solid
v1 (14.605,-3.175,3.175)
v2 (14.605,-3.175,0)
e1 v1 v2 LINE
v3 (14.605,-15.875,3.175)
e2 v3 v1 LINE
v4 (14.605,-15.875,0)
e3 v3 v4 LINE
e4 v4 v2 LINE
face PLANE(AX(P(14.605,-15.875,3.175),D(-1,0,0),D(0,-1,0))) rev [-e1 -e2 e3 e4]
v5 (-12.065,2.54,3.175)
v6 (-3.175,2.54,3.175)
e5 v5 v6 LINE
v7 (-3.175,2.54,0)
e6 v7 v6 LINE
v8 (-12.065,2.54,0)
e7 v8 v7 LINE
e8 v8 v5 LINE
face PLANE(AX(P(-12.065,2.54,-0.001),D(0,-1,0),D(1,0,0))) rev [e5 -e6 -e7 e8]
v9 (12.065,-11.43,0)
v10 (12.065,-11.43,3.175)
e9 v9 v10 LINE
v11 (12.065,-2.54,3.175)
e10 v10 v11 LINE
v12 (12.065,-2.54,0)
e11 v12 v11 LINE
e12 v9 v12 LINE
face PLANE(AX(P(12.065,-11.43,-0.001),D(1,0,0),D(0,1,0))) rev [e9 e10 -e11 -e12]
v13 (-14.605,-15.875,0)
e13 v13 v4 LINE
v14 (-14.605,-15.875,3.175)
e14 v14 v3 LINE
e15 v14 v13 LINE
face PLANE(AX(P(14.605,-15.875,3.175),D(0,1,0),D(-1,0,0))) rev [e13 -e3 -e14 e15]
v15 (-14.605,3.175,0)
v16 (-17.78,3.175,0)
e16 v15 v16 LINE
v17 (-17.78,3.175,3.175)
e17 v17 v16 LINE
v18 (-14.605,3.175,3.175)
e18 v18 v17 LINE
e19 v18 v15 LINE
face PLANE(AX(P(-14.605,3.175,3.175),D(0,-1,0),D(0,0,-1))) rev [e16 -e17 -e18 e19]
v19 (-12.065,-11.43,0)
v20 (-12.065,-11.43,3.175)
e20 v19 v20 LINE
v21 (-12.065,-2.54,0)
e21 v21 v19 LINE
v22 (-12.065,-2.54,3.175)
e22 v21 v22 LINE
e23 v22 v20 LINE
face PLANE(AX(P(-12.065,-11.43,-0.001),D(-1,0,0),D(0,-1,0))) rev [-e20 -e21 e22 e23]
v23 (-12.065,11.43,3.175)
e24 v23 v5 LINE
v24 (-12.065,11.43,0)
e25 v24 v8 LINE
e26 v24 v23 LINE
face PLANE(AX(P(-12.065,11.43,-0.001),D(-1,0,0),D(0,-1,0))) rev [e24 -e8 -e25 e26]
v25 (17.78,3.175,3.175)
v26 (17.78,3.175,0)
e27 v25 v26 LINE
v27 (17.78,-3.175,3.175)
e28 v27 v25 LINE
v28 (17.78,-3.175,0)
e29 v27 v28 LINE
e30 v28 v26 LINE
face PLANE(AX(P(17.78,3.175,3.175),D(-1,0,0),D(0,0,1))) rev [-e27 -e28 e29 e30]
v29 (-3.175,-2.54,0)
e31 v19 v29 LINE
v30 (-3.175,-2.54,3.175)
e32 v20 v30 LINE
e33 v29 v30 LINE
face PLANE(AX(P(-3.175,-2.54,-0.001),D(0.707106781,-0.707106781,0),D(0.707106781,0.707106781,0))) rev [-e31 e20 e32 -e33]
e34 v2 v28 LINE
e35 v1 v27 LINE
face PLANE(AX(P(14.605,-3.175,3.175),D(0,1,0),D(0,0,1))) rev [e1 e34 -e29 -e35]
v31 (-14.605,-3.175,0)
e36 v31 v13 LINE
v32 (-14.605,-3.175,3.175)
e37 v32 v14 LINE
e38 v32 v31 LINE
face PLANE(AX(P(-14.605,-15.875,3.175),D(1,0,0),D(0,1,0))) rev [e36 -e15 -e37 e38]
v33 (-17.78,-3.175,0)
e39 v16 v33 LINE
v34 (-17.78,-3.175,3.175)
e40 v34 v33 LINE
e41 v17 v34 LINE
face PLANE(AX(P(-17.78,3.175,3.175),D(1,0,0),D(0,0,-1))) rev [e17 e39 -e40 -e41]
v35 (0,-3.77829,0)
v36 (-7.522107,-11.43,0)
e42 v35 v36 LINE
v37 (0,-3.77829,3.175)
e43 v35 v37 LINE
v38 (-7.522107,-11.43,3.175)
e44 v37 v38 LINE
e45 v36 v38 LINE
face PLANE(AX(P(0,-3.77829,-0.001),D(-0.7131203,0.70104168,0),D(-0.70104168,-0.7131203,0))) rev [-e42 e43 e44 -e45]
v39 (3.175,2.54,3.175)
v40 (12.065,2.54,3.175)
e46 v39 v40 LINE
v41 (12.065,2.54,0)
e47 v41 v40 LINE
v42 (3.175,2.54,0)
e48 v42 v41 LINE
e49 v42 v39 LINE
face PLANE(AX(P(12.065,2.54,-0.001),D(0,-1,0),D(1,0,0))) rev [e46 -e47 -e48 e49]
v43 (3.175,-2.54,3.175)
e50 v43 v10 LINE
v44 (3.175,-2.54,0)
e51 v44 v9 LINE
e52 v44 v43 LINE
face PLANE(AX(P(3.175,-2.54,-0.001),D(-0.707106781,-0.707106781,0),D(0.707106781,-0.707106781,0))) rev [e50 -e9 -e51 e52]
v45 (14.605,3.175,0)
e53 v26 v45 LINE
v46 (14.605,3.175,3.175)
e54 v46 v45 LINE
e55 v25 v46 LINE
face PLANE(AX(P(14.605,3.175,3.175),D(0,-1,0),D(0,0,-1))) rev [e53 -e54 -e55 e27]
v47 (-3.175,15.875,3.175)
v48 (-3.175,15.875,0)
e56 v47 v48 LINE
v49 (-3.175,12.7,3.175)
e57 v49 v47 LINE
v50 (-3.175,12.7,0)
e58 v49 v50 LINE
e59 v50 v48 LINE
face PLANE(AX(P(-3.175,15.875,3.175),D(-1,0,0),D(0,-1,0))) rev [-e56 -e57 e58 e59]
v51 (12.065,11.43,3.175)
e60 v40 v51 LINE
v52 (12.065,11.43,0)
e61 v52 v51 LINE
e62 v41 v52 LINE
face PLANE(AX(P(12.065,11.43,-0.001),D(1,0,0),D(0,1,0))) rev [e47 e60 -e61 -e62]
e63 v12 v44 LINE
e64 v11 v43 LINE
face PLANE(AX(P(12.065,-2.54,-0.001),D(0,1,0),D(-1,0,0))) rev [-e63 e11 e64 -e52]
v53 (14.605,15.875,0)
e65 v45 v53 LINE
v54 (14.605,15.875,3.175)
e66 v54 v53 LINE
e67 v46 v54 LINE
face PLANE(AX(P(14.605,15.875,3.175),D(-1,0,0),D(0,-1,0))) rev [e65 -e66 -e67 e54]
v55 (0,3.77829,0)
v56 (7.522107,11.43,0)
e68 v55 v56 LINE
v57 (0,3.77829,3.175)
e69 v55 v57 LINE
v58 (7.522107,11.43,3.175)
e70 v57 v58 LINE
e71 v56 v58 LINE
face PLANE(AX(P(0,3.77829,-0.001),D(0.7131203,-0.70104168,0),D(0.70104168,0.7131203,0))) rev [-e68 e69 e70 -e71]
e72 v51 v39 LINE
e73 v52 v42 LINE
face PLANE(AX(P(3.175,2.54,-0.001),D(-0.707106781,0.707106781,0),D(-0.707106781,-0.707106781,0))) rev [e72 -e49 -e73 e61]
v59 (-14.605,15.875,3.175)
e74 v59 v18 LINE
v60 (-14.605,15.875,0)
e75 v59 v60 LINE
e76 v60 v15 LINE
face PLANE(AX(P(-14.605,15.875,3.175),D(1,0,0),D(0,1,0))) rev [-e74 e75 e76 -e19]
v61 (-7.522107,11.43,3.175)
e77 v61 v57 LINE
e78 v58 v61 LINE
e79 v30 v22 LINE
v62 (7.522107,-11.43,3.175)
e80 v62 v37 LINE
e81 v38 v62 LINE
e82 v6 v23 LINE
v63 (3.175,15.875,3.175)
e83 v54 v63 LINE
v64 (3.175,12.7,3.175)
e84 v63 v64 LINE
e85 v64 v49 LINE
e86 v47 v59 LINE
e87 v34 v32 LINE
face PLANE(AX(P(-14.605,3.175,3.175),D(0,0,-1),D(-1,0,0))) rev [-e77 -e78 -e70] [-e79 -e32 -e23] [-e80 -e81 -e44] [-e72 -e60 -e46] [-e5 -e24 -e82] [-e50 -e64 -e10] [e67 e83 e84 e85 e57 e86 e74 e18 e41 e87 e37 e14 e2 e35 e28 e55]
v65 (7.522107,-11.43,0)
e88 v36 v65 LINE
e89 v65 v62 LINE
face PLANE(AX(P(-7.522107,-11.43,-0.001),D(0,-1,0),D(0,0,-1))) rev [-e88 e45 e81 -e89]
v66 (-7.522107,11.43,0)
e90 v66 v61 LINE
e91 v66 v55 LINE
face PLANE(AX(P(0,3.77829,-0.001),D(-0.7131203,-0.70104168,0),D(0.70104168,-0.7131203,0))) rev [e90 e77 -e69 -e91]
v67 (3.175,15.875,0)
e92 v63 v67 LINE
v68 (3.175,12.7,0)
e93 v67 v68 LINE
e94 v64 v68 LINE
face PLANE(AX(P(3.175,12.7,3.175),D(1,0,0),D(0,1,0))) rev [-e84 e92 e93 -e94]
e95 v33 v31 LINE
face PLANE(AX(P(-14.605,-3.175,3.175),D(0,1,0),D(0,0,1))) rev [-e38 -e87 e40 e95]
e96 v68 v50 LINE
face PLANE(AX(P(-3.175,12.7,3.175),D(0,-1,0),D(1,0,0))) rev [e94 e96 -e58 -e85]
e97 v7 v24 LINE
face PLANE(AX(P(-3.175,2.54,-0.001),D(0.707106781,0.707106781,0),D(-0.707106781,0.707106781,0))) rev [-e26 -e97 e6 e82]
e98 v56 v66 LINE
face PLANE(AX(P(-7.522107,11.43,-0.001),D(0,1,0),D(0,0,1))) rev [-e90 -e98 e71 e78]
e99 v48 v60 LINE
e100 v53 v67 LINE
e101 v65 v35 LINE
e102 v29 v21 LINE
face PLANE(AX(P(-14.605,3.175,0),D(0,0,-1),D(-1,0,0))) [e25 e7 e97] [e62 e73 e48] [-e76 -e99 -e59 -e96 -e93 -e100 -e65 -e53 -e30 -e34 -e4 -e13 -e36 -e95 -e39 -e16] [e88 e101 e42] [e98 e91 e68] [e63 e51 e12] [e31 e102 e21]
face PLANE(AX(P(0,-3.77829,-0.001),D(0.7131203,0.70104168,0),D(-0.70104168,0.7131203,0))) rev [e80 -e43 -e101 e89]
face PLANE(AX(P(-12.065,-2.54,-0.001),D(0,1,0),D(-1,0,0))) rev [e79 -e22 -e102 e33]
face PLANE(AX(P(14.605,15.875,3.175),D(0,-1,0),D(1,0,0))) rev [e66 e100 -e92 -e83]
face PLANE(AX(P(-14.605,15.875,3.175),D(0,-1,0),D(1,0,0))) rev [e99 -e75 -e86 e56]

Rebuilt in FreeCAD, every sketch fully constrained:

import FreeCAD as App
import Part
import Sketcher
Q = App.Units.Quantity

doc = App.newDocument("Part")
body = doc.addObject("PartDesign::Body", "Body")

sketch1 = doc.addObject("Sketcher::SketchObject", "Sketch")
body.addObject(sketch1)
sketch1.AttachmentSupport = (doc.XY_Plane, [""])
sketch1.MapMode = "FlatFace"
sketch1.addGeometry([
    Part.LineSegment(App.Vector(-3.2, 15.9, 0), App.Vector(-14.6, 15.9, 0)),
    Part.LineSegment(App.Vector(-14.6, 15.9, 0), App.Vector(-14.6, 3.2, 0)),
    Part.LineSegment(App.Vector(-14.6, 3.2, 0), App.Vector(-17.8, 3.2, 0)),
    Part.LineSegment(App.Vector(-17.8, 3.2, 0), App.Vector(-17.8, -3.2, 0)),
    Part.LineSegment(App.Vector(-17.8, -3.2, 0), App.Vector(-14.6, -3.2, 0)),
    Part.LineSegment(App.Vector(-14.6, -3.2, 0), App.Vector(-14.6, -15.9, 0)),
    Part.LineSegment(App.Vector(-14.6, -15.9, 0), App.Vector(14.6, -15.9, 0)),
    Part.LineSegment(App.Vector(14.6, -15.9, 0), App.Vector(14.6, -3.2, 0)),
    Part.LineSegment(App.Vector(14.6, -3.2, 0), App.Vector(17.8, -3.2, 0)),
    Part.LineSegment(App.Vector(17.8, -3.2, 0), App.Vector(17.8, 3.2, 0)),
    Part.LineSegment(App.Vector(17.8, 3.2, 0), App.Vector(14.6, 3.2, 0)),
    Part.LineSegment(App.Vector(14.6, 3.2, 0), App.Vector(14.6, 15.9, 0)),
    Part.LineSegment(App.Vector(14.6, 15.9, 0), App.Vector(3.2, 15.9, 0)),
    Part.LineSegment(App.Vector(3.2, 15.9, 0), App.Vector(3.2, 12.7, 0)),
    Part.LineSegment(App.Vector(3.2, 12.7, 0), App.Vector(-3.2, 12.7, 0)),
    Part.LineSegment(App.Vector(-3.2, 12.7, 0), App.Vector(-3.2, 15.9, 0)),
], False)
sketch1.addConstraint([
    Sketcher.Constraint("Coincident", 0, 2, 1, 1),
    Sketcher.Constraint("Coincident", 1, 2, 2, 1),
    Sketcher.Constraint("Coincident", 2, 2, 3, 1),
    Sketcher.Constraint("Coincident", 3, 2, 4, 1),
    Sketcher.Constraint("Coincident", 4, 2, 5, 1),
    Sketcher.Constraint("Coincident", 5, 2, 6, 1),
    Sketcher.Constraint("Coincident", 6, 2, 7, 1),
    Sketcher.Constraint("Coincident", 7, 2, 8, 1),
    Sketcher.Constraint("Coincident", 8, 2, 9, 1),
    Sketcher.Constraint("Coincident", 9, 2, 10, 1),
    Sketcher.Constraint("Coincident", 10, 2, 11, 1),
    Sketcher.Constraint("Coincident", 11, 2, 12, 1),
    Sketcher.Constraint("Coincident", 12, 2, 13, 1),
    Sketcher.Constraint("Coincident", 13, 2, 14, 1),
    Sketcher.Constraint("Coincident", 14, 2, 15, 1),
    Sketcher.Constraint("Coincident", 15, 2, 0, 1),
    Sketcher.Constraint("Horizontal", 0),
    Sketcher.Constraint("Vertical", 1),
    Sketcher.Constraint("Horizontal", 2),
    Sketcher.Constraint("Vertical", 3),
    Sketcher.Constraint("Horizontal", 4),
    Sketcher.Constraint("Vertical", 5),
    Sketcher.Constraint("Horizontal", 6),
    Sketcher.Constraint("Vertical", 7),
    Sketcher.Constraint("Horizontal", 8),
    Sketcher.Constraint("Vertical", 9),
    Sketcher.Constraint("Horizontal", 10),
    Sketcher.Constraint("Vertical", 11),
    Sketcher.Constraint("Horizontal", 12),
    Sketcher.Constraint("Vertical", 13),
    Sketcher.Constraint("Horizontal", 14),
    Sketcher.Constraint("Vertical", 15),
    Sketcher.Constraint("Symmetric", 0, 2, 6, 2, -1, 1),
    Sketcher.Constraint("Symmetric", 2, 2, 8, 2, -1, 1),
    Sketcher.Constraint("Symmetric", 4, 2, 10, 2, -1, 1),
    Sketcher.Constraint("Symmetric", 4, 2, 7, 2, -2),
    Sketcher.Constraint("Symmetric", 12, 2, 15, 2, -2),
    Sketcher.Constraint("Equal", 14, 3),
    Sketcher.Constraint("Equal", 10, 13),
    Sketcher.Constraint("DistanceY", 1, 2, 1, 1, Q("0.5 in")),
    Sketcher.Constraint("DistanceX", 0, 2, 0, 1, Q("0.45 in")),
    Sketcher.Constraint("DistanceX", 6, 1, 6, 2, Q("1.15 in")),
    Sketcher.Constraint("DistanceX", 2, 2, -1, 1, Q("0.7 in")),
])
pad1 = doc.addObject("PartDesign::Pad", "Pad")
body.addObject(pad1)
pad1.Profile = sketch1
pad1.Length = Q("0.125 in")

sketch2 = doc.addObject("Sketcher::SketchObject", "Sketch001")
body.addObject(sketch2)
sketch2.AttachmentSupport = (doc.XY_Plane, [""])
sketch2.MapMode = "FlatFace"
sketch2.AttachmentOffset = App.Placement(App.Vector(0, 0, 0.125 * 25.4), App.Rotation())
sketch2.addGeometry([
    Part.LineSegment(App.Vector(12, 11, 0), App.Vector(3, 3, 0)),
    Part.LineSegment(App.Vector(3, 3, 0), App.Vector(12, 3, 0)),
    Part.LineSegment(App.Vector(12, 3, 0), App.Vector(12, 11, 0)),
], False)
sketch2.addConstraint([
    Sketcher.Constraint("Coincident", 0, 2, 1, 1),
    Sketcher.Constraint("Coincident", 1, 2, 2, 1),
    Sketcher.Constraint("Coincident", 2, 2, 0, 1),
    Sketcher.Constraint("Horizontal", 1),
    Sketcher.Constraint("Vertical", 2),
    Sketcher.Constraint("Equal", 1, 2),
    Sketcher.Constraint("DistanceX", 1, 1, 1, 2, Q("0.35 in")),
    Sketcher.Constraint("DistanceY", -1, 1, 0, 2, Q("0.1 in")),
    Sketcher.Constraint("DistanceX", -1, 1, 0, 2, Q("0.125 in")),
])
pocket1 = doc.addObject("PartDesign::Pocket", "Pocket")
body.addObject(pocket1)
pocket1.Profile = sketch2
pocket1.Type = "UpToFirst"

sketch3 = doc.addObject("Sketcher::SketchObject", "Sketch002")
body.addObject(sketch3)
sketch3.AttachmentSupport = (doc.XY_Plane, [""])
sketch3.MapMode = "FlatFace"
sketch3.AttachmentOffset = App.Placement(App.Vector(0, 0, 0.125 * 25.4), App.Rotation())
sketch3.addGeometry([
    Part.LineSegment(App.Vector(-12, 3, 0), App.Vector(-3, 3, 0)),
    Part.LineSegment(App.Vector(-3, 3, 0), App.Vector(-12, 11, 0)),
    Part.LineSegment(App.Vector(-12, 11, 0), App.Vector(-12, 3, 0)),
], False)
sketch3.addConstraint([
    Sketcher.Constraint("Coincident", 0, 2, 1, 1),
    Sketcher.Constraint("Coincident", 1, 2, 2, 1),
    Sketcher.Constraint("Coincident", 2, 2, 0, 1),
    Sketcher.Constraint("Horizontal", 0),
    Sketcher.Constraint("Vertical", 2),
    Sketcher.Constraint("Equal", 0, 2),
    Sketcher.Constraint("DistanceX", 0, 1, 0, 2, Q("0.35 in")),
    Sketcher.Constraint("DistanceY", -1, 1, 0, 2, Q("0.1 in")),
    Sketcher.Constraint("DistanceX", 0, 2, -1, 1, Q("0.125 in")),
])
pocket2 = doc.addObject("PartDesign::Pocket", "Pocket001")
body.addObject(pocket2)
pocket2.Profile = sketch3
pocket2.Type = "UpToFirst"

sketch4 = doc.addObject("Sketcher::SketchObject", "Sketch003")
body.addObject(sketch4)
sketch4.AttachmentSupport = (doc.XY_Plane, [""])
sketch4.MapMode = "FlatFace"
sketch4.AttachmentOffset = App.Placement(App.Vector(0, 0, 0.125 * 25.4), App.Rotation())
sketch4.addGeometry([
    Part.LineSegment(App.Vector(-12, -11, 0), App.Vector(-3, -3, 0)),
    Part.LineSegment(App.Vector(-3, -3, 0), App.Vector(-12, -3, 0)),
    Part.LineSegment(App.Vector(-12, -3, 0), App.Vector(-12, -11, 0)),
], False)
sketch4.addConstraint([
    Sketcher.Constraint("Coincident", 0, 2, 1, 1),
    Sketcher.Constraint("Coincident", 1, 2, 2, 1),
    Sketcher.Constraint("Coincident", 2, 2, 0, 1),
    Sketcher.Constraint("Horizontal", 1),
    Sketcher.Constraint("Vertical", 2),
    Sketcher.Constraint("Equal", 1, 2),
    Sketcher.Constraint("DistanceX", 1, 2, 1, 1, Q("0.35 in")),
    Sketcher.Constraint("DistanceY", 0, 2, -1, 1, Q("0.1 in")),
    Sketcher.Constraint("DistanceX", 0, 2, -1, 1, Q("0.125 in")),
])
pocket3 = doc.addObject("PartDesign::Pocket", "Pocket002")
body.addObject(pocket3)
pocket3.Profile = sketch4
pocket3.Type = "UpToFirst"

sketch5 = doc.addObject("Sketcher::SketchObject", "Sketch004")
body.addObject(sketch5)
sketch5.AttachmentSupport = (doc.XY_Plane, [""])
sketch5.MapMode = "FlatFace"
sketch5.AttachmentOffset = App.Placement(App.Vector(0, 0, 0.125 * 25.4), App.Rotation())
sketch5.addGeometry([
    Part.LineSegment(App.Vector(12, -3, 0), App.Vector(3, -3, 0)),
    Part.LineSegment(App.Vector(3, -3, 0), App.Vector(12, -11, 0)),
    Part.LineSegment(App.Vector(12, -11, 0), App.Vector(12, -3, 0)),
], False)
sketch5.addConstraint([
    Sketcher.Constraint("Coincident", 0, 2, 1, 1),
    Sketcher.Constraint("Coincident", 1, 2, 2, 1),
    Sketcher.Constraint("Coincident", 2, 2, 0, 1),
    Sketcher.Constraint("Horizontal", 0),
    Sketcher.Constraint("Vertical", 2),
    Sketcher.Constraint("Equal", 0, 2),
    Sketcher.Constraint("DistanceX", 0, 2, 0, 1, Q("0.35 in")),
    Sketcher.Constraint("DistanceY", 0, 2, -1, 1, Q("0.1 in")),
    Sketcher.Constraint("DistanceX", -1, 1, 0, 2, Q("0.125 in")),
])
pocket4 = doc.addObject("PartDesign::Pocket", "Pocket003")
body.addObject(pocket4)
pocket4.Profile = sketch5
pocket4.Type = "UpToFirst"

sketch6 = doc.addObject("Sketcher::SketchObject", "Sketch005")
body.addObject(sketch6)
sketch6.AttachmentSupport = (doc.XY_Plane, [""])
sketch6.MapMode = "FlatFace"
sketch6.AttachmentOffset = App.Placement(App.Vector(0, 0, 0.125 * 25.4), App.Rotation())
sketch6.addGeometry([
    Part.LineSegment(App.Vector(8, 11, 0), App.Vector(-8, 11, 0)),
    Part.LineSegment(App.Vector(-8, 11, 0), App.Vector(0, 4, 0)),
    Part.LineSegment(App.Vector(0, 4, 0), App.Vector(8, 11, 0)),
], False)
sketch6.addConstraint([
    Sketcher.Constraint("Coincident", 0, 2, 1, 1),
    Sketcher.Constraint("Coincident", 1, 2, 2, 1),
    Sketcher.Constraint("Coincident", 2, 2, 0, 1),
    Sketcher.Constraint("Horizontal", 0),
    Sketcher.Constraint("PointOnObject", 1, 2, -2),
    Sketcher.Constraint("Equal", 1, 2),
    Sketcher.Constraint("DistanceY", -1, 1, 0, 2, Q("0.45 in")),
    Sketcher.Constraint("Distance", 1, 10.729901),
    Sketcher.Constraint("DistanceX", 0, 2, 0, 1, 15.044215),
])
pocket5 = doc.addObject("PartDesign::Pocket", "Pocket004")
body.addObject(pocket5)
pocket5.Profile = sketch6
pocket5.Type = "UpToFirst"

sketch7 = doc.addObject("Sketcher::SketchObject", "Sketch006")
body.addObject(sketch7)
sketch7.AttachmentSupport = (doc.XY_Plane, [""])
sketch7.MapMode = "FlatFace"
sketch7.AttachmentOffset = App.Placement(App.Vector(0, 0, 0.125 * 25.4), App.Rotation())
sketch7.addGeometry([
    Part.LineSegment(App.Vector(8, -11, 0), App.Vector(0, -4, 0)),
    Part.LineSegment(App.Vector(0, -4, 0), App.Vector(-8, -11, 0)),
    Part.LineSegment(App.Vector(-8, -11, 0), App.Vector(8, -11, 0)),
], False)
sketch7.addConstraint([
    Sketcher.Constraint("Coincident", 0, 2, 1, 1),
    Sketcher.Constraint("Coincident", 1, 2, 2, 1),
    Sketcher.Constraint("Coincident", 2, 2, 0, 1),
    Sketcher.Constraint("Horizontal", 2),
    Sketcher.Constraint("PointOnObject", 0, 2, -2),
    Sketcher.Constraint("Equal", 0, 1),
    Sketcher.Constraint("DistanceY", 1, 2, -1, 1, Q("0.45 in")),
    Sketcher.Constraint("Distance", 0, 10.729901),
    Sketcher.Constraint("DistanceX", 2, 1, 2, 2, 15.044215),
])
pocket6 = doc.addObject("PartDesign::Pocket", "Pocket005")
body.addObject(pocket6)
pocket6.Profile = sketch7
pocket6.Type = "UpToFirst"

doc.recompute()
